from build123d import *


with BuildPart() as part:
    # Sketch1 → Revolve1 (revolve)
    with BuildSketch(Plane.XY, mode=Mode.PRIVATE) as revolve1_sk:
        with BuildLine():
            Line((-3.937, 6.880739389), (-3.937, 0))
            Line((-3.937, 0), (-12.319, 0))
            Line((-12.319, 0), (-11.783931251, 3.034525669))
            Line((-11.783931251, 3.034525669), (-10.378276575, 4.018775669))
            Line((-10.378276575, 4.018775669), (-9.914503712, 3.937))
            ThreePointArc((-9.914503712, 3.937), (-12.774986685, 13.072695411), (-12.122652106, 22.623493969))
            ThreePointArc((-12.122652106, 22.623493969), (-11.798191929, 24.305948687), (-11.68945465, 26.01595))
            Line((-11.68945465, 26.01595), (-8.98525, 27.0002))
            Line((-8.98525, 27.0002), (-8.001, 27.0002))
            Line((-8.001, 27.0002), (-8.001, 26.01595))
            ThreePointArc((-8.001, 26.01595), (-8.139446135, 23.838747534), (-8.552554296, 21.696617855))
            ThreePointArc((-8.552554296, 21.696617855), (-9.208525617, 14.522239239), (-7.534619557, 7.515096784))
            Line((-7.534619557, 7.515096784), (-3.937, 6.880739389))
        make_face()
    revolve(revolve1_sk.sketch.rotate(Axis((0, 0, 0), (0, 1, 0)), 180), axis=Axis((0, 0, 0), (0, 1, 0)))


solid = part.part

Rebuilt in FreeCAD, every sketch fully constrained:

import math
import FreeCAD as App
import Part
import Sketcher

V = App.Vector
Q = App.Units.Quantity

doc = App.newDocument("Part")
body = doc.addObject("PartDesign::Body", "Body")

sketch1 = doc.addObject("Sketcher::SketchObject", "Sketch")
body.addObject(sketch1)
sketch1.AttachmentSupport = (doc.XY_Plane, [""])
sketch1.MapMode = "FlatFace"
sketch1.addGeometry([
    Part.LineSegment(V(-3.937, 0, 0), V(-3.937, 6.880739, 0)),
    Part.LineSegment(V(-3.937, 6.880739, 0), V(-7.53462, 7.515097, 0)),
    Part.ArcOfCircle(Part.Circle(V(12.954, 16.113042, 0), V(0, 0, 1), 22.219545), math.radians(165.446069), math.radians(202.76511)),
    Part.ArcOfCircle(Part.Circle(V(-25.189555, 26.01595, 0), V(0, 0, 1), 17.188555), math.radians(-14.553931), math.radians(0)),
    Part.LineSegment(V(-8.001, 26.01595, 0), V(-8.001, 27.0002, 0)),
    Part.LineSegment(V(-8.001, 27.0002, 0), V(-8.98525, 27.0002, 0)),
    Part.LineSegment(V(-8.98525, 27.0002, 0), V(-11.689455, 26.01595, 0)),
    Part.ArcOfCircle(Part.Circle(V(-25.189555, 26.01595, 0), V(0, 0, 1), 13.5001), math.radians(-14.553931), math.radians(0)),
    Part.ArcOfCircle(Part.Circle(V(12.954, 16.113042, 0), V(0, 0, 1), 25.908), math.radians(165.446069), math.radians(208.032498)),
    Part.LineSegment(V(-9.914504, 3.937, 0), V(-10.378277, 4.018776, 0)),
    Part.LineSegment(V(-10.378277, 4.018776, 0), V(-11.783931, 3.034526, 0)),
    Part.LineSegment(V(-11.783931, 3.034526, 0), V(-12.319, 0, 0)),
    Part.LineSegment(V(-12.319, 0, 0), V(-3.937, 0, 0)),
], False)
sketch1.addConstraint([
    Sketcher.Constraint("Coincident", 0, 2, 1, 1),
    Sketcher.Constraint("Coincident", 1, 2, 2, 2),
    Sketcher.Constraint("Tangent", 2, 1, 3, 1),
    Sketcher.Constraint("Tangent", 3, 2, 4, 1),
    Sketcher.Constraint("Coincident", 4, 2, 5, 1),
    Sketcher.Constraint("Coincident", 5, 2, 6, 1),
    Sketcher.Constraint("Coincident", 6, 2, 7, 2),
    Sketcher.Constraint("Tangent", 7, 1, 8, 1),
    Sketcher.Constraint("Coincident", 8, 2, 9, 1),
    Sketcher.Constraint("Coincident", 9, 2, 10, 1),
    Sketcher.Constraint("Coincident", 10, 2, 11, 1),
    Sketcher.Constraint("Coincident", 11, 2, 12, 1),
    Sketcher.Constraint("Coincident", 12, 2, 0, 1),
    Sketcher.Constraint("Vertical", 0),
    Sketcher.Constraint("Vertical", 4),
    Sketcher.Constraint("Horizontal", 5),
    Sketcher.Constraint("Horizontal", 12),
    Sketcher.Constraint("Coincident", 7, 3, 3, 3),
    Sketcher.Constraint("Coincident", 8, 3, 2, 3),
    Sketcher.Constraint("PointOnObject", 11, 2, -1),
    Sketcher.Constraint("Parallel", 1, 9),
    Sketcher.Constraint("Perpendicular", 9, 11),
    Sketcher.Constraint("Horizontal", 3, 2, 6, 2),
    Sketcher.Constraint("Equal", 5, 4),
    Sketcher.Constraint("Radius", 8, Q("1.02 in")),
    Sketcher.Constraint("Angle", 1, Q("170 deg")),
    Sketcher.Constraint("Angle", 6, Q("-160 deg")),
    Sketcher.Constraint("Angle", 10, Q("-145 deg")),
    Sketcher.Constraint("DistanceX", 12, 1, 12, 2, Q("0.33 in")),
    Sketcher.Constraint("Radius", 7, Q("0.5315 in")),
    Sketcher.Constraint("DistanceX", -1, 1, 2, 3, Q("0.51 in")),
    Sketcher.Constraint("DistanceX", 3, 2, 0, 2, Q("0.16 in")),
    Sketcher.Constraint("DistanceX", 0, 2, -1, 1, Q("0.155 in")),
    Sketcher.Constraint("DistanceY", -1, 1, 4, 2, Q("1.063 in")),
    Sketcher.Constraint("DistanceY", -1, 1, 8, 2, Q("0.155 in")),
    Sketcher.Constraint("DistanceX", 7, 3, 2, 1, Q("0.655 in")),
    Sketcher.Constraint("DistanceY", 0, 1, 0, 2, 6.880739),
    Sketcher.Constraint("Distance", 11, 3.081338),
])
revolution = doc.addObject("PartDesign::Revolution", "Revolution")
body.addObject(revolution)
revolution.Profile = sketch1
revolution.ReferenceAxis = (sketch1, ["V_Axis"])
revolution.Angle = 360

doc.recompute()
